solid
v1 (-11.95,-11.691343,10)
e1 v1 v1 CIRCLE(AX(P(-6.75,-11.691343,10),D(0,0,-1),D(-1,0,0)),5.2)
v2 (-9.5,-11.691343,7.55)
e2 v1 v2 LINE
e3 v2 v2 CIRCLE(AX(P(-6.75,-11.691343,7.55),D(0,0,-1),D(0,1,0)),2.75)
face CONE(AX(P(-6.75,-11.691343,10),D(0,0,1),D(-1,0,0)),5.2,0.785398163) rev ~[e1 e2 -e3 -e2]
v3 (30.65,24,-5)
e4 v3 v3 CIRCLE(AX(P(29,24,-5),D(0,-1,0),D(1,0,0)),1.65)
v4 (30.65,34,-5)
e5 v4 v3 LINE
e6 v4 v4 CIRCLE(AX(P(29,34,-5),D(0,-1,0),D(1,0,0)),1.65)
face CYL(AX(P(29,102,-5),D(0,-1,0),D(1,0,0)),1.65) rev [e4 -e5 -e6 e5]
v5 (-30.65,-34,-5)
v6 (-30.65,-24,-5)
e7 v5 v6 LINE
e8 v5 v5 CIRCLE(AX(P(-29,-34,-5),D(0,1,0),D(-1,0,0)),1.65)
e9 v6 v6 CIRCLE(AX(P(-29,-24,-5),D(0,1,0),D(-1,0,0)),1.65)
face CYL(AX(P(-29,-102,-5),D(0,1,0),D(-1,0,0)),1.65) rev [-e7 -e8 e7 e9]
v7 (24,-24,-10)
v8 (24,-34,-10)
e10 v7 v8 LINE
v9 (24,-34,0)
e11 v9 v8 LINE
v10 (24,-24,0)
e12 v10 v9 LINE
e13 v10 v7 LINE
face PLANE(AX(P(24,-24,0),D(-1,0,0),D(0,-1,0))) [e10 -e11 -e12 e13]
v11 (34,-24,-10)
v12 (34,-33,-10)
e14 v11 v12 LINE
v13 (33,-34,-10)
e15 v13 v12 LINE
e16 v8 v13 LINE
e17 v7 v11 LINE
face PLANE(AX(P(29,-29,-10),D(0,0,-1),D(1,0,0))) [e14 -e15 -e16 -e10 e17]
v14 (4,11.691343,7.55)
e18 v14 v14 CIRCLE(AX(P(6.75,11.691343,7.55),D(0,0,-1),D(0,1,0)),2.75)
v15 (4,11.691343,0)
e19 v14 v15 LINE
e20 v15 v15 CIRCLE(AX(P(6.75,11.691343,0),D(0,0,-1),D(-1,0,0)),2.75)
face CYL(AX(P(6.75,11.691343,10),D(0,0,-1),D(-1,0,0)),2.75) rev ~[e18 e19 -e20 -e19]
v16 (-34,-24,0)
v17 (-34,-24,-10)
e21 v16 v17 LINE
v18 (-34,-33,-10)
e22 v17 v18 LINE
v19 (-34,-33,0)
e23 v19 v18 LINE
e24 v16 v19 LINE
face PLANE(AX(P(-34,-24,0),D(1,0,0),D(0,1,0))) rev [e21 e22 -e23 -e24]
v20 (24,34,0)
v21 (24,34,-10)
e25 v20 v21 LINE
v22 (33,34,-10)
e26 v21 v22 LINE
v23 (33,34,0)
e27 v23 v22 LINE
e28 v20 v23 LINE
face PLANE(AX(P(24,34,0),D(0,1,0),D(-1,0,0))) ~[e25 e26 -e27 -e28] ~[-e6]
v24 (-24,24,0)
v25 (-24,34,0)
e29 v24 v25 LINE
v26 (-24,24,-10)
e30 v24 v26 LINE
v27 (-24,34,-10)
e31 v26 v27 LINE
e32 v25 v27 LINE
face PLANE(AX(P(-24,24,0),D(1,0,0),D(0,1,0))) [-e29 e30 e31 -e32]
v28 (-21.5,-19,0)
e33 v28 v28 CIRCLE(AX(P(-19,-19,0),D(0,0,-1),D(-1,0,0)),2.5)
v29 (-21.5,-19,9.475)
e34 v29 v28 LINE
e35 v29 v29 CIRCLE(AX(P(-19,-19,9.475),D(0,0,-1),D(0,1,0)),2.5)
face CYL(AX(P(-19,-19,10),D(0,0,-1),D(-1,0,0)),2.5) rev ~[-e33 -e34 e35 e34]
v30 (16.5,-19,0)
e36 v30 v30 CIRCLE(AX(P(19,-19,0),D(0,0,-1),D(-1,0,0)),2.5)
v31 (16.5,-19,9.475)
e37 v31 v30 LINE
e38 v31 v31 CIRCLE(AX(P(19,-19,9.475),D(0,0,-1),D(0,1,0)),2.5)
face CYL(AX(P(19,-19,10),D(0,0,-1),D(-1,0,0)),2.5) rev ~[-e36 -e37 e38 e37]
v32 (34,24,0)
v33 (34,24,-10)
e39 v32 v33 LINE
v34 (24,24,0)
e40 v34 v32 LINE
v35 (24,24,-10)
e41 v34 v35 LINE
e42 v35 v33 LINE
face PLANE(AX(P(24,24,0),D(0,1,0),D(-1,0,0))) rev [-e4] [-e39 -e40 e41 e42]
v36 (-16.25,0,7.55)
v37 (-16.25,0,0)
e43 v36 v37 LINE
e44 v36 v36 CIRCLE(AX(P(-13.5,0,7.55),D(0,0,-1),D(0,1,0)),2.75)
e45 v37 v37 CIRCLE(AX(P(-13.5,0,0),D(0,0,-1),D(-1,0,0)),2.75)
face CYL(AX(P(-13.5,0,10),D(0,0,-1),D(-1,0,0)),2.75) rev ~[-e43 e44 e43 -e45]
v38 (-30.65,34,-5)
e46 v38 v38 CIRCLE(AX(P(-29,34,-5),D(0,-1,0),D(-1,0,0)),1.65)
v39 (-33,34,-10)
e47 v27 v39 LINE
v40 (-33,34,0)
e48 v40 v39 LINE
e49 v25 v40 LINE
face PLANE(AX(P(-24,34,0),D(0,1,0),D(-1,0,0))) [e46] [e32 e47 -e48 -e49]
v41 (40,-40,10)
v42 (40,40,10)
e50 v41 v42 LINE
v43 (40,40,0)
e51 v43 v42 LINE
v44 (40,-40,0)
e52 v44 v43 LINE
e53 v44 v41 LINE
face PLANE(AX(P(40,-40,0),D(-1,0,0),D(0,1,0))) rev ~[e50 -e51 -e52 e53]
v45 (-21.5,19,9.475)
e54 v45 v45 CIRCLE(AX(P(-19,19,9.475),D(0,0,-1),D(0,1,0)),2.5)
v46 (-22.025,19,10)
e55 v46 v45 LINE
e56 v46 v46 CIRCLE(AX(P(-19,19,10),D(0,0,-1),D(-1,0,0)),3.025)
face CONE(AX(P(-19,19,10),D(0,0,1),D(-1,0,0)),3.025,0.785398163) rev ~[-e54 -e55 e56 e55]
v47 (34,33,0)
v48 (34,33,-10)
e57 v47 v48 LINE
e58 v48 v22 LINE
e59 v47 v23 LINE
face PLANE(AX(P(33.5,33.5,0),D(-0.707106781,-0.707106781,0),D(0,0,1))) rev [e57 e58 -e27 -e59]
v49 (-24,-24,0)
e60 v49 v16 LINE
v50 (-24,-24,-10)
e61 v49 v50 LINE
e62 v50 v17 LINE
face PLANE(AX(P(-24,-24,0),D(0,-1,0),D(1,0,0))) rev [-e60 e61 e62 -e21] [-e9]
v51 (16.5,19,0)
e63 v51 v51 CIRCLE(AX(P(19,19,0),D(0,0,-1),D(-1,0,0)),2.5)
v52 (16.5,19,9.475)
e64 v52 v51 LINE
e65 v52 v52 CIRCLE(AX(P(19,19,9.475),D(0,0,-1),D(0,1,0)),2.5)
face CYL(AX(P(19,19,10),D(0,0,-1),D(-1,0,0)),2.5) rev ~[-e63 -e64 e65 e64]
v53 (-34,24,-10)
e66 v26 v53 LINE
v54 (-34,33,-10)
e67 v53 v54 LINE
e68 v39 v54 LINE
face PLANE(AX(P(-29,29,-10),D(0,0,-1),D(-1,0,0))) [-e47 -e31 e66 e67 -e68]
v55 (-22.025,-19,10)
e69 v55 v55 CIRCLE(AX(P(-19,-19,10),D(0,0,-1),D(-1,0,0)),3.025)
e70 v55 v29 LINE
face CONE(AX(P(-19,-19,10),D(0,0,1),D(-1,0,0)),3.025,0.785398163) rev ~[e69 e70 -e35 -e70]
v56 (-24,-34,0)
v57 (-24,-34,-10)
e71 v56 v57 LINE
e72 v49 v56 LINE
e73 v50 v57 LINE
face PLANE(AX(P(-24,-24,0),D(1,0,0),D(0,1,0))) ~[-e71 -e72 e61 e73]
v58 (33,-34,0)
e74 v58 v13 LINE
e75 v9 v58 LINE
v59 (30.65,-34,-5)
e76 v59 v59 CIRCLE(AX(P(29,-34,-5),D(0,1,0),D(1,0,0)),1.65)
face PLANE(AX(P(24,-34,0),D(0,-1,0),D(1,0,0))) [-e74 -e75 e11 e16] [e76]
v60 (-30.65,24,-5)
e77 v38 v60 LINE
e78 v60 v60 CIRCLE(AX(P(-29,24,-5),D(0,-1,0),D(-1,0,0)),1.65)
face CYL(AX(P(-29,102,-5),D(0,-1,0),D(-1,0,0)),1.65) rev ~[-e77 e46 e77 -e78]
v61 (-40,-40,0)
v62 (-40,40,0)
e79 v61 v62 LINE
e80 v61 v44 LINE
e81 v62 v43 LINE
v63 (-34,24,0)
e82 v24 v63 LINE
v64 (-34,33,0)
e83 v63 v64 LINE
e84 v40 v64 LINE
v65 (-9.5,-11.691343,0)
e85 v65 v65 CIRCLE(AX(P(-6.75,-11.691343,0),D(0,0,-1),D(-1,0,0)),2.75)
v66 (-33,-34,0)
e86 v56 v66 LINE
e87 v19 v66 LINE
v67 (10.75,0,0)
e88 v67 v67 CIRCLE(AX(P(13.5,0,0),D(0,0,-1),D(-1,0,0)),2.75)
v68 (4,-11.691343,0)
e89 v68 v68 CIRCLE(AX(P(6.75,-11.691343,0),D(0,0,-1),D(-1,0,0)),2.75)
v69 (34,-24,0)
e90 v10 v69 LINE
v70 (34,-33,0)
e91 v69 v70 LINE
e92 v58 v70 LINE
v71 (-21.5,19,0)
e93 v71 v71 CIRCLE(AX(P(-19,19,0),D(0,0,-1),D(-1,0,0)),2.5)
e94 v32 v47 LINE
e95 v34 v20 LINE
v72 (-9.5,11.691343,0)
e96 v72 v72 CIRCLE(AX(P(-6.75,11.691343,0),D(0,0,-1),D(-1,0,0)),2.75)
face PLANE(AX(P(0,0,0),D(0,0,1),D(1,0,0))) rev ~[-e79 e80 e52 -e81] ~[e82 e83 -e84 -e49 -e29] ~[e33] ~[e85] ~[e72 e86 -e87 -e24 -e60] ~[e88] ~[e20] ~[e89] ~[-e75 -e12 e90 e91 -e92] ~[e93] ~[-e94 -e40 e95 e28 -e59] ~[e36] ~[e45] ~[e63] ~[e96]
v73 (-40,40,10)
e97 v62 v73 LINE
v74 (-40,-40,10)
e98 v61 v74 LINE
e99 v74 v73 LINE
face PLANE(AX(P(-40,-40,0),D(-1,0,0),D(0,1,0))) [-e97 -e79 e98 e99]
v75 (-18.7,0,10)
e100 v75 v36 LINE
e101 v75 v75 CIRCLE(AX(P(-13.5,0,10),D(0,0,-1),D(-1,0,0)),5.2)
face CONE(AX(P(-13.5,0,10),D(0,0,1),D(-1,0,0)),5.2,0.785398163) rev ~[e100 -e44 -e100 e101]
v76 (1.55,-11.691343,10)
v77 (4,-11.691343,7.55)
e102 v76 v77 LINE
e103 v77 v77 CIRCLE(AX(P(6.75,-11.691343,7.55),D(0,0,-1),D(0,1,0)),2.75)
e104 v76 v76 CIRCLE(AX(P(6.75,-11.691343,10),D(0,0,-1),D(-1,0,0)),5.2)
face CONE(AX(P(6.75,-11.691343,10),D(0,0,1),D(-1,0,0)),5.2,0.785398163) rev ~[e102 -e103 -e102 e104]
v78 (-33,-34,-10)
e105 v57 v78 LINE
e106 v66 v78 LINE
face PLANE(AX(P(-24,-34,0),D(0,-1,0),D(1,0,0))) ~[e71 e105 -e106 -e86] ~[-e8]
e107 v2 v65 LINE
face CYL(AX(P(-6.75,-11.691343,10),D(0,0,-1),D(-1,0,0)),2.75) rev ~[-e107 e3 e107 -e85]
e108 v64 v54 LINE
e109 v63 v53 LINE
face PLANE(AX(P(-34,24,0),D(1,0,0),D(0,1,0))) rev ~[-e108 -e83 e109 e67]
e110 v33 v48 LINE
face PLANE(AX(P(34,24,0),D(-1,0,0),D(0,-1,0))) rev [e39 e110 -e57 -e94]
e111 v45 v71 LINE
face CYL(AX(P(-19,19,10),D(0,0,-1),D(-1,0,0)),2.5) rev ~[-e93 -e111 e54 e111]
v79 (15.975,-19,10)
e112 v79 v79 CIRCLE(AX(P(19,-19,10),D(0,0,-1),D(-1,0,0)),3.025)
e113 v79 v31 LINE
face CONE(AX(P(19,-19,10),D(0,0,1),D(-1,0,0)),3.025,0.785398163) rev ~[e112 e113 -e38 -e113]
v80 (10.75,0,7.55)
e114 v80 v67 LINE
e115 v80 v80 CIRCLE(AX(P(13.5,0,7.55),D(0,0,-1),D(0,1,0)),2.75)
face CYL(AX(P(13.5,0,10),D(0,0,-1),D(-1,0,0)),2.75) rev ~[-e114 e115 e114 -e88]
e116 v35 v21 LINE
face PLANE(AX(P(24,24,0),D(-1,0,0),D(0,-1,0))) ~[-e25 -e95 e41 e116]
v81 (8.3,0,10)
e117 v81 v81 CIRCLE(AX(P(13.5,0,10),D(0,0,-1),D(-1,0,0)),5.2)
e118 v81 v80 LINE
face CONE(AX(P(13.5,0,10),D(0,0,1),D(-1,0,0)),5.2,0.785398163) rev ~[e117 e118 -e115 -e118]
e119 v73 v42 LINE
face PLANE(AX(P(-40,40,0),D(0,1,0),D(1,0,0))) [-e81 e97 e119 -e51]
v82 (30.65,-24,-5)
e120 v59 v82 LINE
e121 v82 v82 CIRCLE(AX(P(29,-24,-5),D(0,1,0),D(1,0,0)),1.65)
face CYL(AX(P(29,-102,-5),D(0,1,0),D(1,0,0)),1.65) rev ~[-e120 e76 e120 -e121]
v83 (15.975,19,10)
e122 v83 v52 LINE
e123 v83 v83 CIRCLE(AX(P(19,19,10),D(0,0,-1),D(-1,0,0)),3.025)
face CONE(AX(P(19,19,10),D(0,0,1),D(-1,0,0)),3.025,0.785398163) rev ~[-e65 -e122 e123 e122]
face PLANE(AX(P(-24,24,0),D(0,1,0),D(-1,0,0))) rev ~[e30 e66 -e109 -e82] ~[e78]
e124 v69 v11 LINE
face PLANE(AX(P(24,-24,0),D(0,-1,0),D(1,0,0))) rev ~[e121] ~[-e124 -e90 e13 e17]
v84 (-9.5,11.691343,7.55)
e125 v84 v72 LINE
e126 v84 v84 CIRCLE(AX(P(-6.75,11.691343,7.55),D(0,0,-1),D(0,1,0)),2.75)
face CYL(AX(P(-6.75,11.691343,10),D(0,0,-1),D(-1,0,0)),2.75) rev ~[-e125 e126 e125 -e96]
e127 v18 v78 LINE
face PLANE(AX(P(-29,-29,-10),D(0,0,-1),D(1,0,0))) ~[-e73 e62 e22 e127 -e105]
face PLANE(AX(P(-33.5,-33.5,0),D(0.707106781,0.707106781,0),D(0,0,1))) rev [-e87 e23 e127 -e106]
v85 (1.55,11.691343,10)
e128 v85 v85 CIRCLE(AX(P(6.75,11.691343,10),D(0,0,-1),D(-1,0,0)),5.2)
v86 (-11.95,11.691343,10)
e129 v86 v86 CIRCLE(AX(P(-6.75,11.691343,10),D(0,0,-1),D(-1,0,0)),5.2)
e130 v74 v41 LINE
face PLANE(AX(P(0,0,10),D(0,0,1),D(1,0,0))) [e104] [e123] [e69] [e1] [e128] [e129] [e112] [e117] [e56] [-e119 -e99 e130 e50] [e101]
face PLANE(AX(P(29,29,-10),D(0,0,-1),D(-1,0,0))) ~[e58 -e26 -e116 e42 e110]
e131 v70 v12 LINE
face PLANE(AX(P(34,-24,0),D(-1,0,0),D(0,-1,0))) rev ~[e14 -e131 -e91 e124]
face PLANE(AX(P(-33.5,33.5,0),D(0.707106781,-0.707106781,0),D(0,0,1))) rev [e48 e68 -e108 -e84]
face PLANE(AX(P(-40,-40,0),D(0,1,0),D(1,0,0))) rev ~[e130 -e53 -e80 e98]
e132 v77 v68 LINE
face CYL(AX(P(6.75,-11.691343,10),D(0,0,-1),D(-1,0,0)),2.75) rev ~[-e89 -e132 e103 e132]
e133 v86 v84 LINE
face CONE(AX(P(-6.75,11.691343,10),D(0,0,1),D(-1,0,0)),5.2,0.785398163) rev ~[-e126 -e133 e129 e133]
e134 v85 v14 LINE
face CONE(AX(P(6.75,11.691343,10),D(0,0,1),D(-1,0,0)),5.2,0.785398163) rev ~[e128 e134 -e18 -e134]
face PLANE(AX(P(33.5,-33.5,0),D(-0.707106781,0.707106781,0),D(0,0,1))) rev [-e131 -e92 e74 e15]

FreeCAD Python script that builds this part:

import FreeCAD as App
import Part
import Sketcher

V = App.Vector


def edges_at(feature, points):
    """Names of the edges that pass closest to the given points."""
    edges = feature.Shape.Edges
    near = lambda p: min(range(len(edges)), key=lambda i: edges[i].distToShape(Part.Vertex(*p))[0])
    return sorted({f"Edge{near(p) + 1}" for p in points})

doc = App.newDocument("Part")
body = doc.addObject("PartDesign::Body", "Body")

sketch1 = doc.addObject("Sketcher::SketchObject", "Sketch")
body.addObject(sketch1)
sketch1.AttachmentSupport = (doc.XY_Plane, [""])
sketch1.MapMode = "FlatFace"
sketch1.addGeometry([
    Part.LineSegment(V(-40, 40, 0), V(-40, -40, 0)),
    Part.LineSegment(V(-40, -40, 0), V(40, -40, 0)),
    Part.LineSegment(V(40, -40, 0), V(40, 40, 0)),
    Part.LineSegment(V(40, 40, 0), V(-40, 40, 0)),
], False)
sketch1.addConstraint([
    Sketcher.Constraint("Coincident", 0, 2, 1, 1),
    Sketcher.Constraint("Coincident", 1, 2, 2, 1),
    Sketcher.Constraint("Coincident", 2, 2, 3, 1),
    Sketcher.Constraint("Coincident", 3, 2, 0, 1),
    Sketcher.Constraint("Vertical", 0),
    Sketcher.Constraint("Horizontal", 1),
    Sketcher.Constraint("Vertical", 2),
    Sketcher.Constraint("Horizontal", 3),
    Sketcher.Constraint("Symmetric", 0, 2, 2, 2, -1, 1),
    Sketcher.Constraint("Equal", 3, 0),
    Sketcher.Constraint("DistanceX", 1, 1, 1, 2, 80.0),
])
pad1 = doc.addObject("PartDesign::Pad", "Pad")
body.addObject(pad1)
pad1.Profile = sketch1
pad1.Length = 10

sketch2 = doc.addObject("Sketcher::SketchObject", "Sketch001")
body.addObject(sketch2)
sketch2.AttachmentSupport = (doc.XY_Plane, [""])
sketch2.MapMode = "FlatFace"
sketch2.addGeometry([
    Part.LineSegment(V(-24, 34, 0), V(-24, 24, 0)),
    Part.LineSegment(V(-24, 24, 0), V(-34, 24, 0)),
    Part.LineSegment(V(-34, 24, 0), V(-34, 34, 0)),
    Part.LineSegment(V(-34, 34, 0), V(-24, 34, 0)),
], False)
sketch2.addConstraint([
    Sketcher.Constraint("Coincident", 0, 2, 1, 1),
    Sketcher.Constraint("Coincident", 1, 2, 2, 1),
    Sketcher.Constraint("Coincident", 2, 2, 3, 1),
    Sketcher.Constraint("Coincident", 3, 2, 0, 1),
    Sketcher.Constraint("Vertical", 0),
    Sketcher.Constraint("Horizontal", 1),
    Sketcher.Constraint("Vertical", 2),
    Sketcher.Constraint("Horizontal", 3),
    Sketcher.Constraint("Equal", 3, 0),
    Sketcher.Constraint("DistanceX", 1, 2, 1, 1, 10.0),
    Sketcher.Constraint("DistanceX", 0, 2, -1, 1, 24.0),
    Sketcher.Constraint("DistanceY", -1, 1, 0, 2, 24.0),
])
pad2 = doc.addObject("PartDesign::Pad", "Pad001")
body.addObject(pad2)
pad2.Profile = sketch2
pad2.Length = 10
pad2.Reversed = True

sketch3 = doc.addObject("Sketcher::SketchObject", "Sketch002")
body.addObject(sketch3)
sketch3.AttachmentSupport = (doc.XZ_Plane, [""])
sketch3.MapMode = "FlatFace"
sketch3.AttachmentOffset = App.Placement(V(0, 0, -34), App.Rotation())
sketch3.addGeometry(Part.Circle(V(-29, -5, 0), V(0, 0, 1), 1.6), False)
sketch3.addConstraint([
    Sketcher.Constraint("Diameter", 0, 3.3),
    Sketcher.Constraint("DistanceX", 0, 3, -1, 1, 29.0),
    Sketcher.Constraint("DistanceY", 0, 3, -1, 1, 5.0),
])
doc.recompute()
hole = doc.addObject("PartDesign::Hole", "Hole")
body.addObject(hole)
hole.Profile = sketch3
hole.ThreadType = "None"
hole.Diameter = 3.3
hole.DepthType = "Dimension"
hole.Depth = 68
hole.DrillPoint = "Flat"
hole.Reversed = True

sketch4 = doc.addObject("Sketcher::SketchObject", "Sketch003")
body.addObject(sketch4)
sketch4.AttachmentSupport = (doc.XY_Plane, [""])
sketch4.MapMode = "FlatFace"
sketch4.AttachmentOffset = App.Placement(V(0, 0, 10), App.Rotation())
sketch4.addGeometry([
    Part.Circle(V(-6.8, 11.7, 0), V(0, 0, 1), 2.8),
    Part.Circle(V(-13.5, 0, 0), V(0, 0, 1), 2.8),
    Part.Circle(V(-6.8, -11.7, 0), V(0, 0, 1), 2.8),
    Part.Circle(V(6.8, -11.7, 0), V(0, 0, 1), 2.8),
    Part.Circle(V(13.5, 0, 0), V(0, 0, 1), 2.8),
    Part.Circle(V(6.8, 11.7, 0), V(0, 0, 1), 2.8),
], False)
sketch4.addConstraint([
    Sketcher.Constraint("Equal", 0, 1),
    Sketcher.Constraint("Equal", 1, 2),
    Sketcher.Constraint("Equal", 2, 3),
    Sketcher.Constraint("Equal", 3, 4),
    Sketcher.Constraint("Equal", 4, 5),
    Sketcher.Constraint("Symmetric", 0, 3, 3, 3, -1, 1),
    Sketcher.Constraint("Symmetric", 1, 3, 4, 3, -1, 1),
    Sketcher.Constraint("Symmetric", 2, 3, 5, 3, -1, 1),
    Sketcher.Constraint("Symmetric", 2, 3, 3, 3, -2),
    Sketcher.Constraint("PointOnObject", 1, 3, -1),
    Sketcher.Constraint("Diameter", 0, 5.5),
    Sketcher.Constraint("DistanceX", 1, 3, 4, 3, 27.0),
    Sketcher.Constraint("DistanceX", 2, 3, 3, 3, 13.5),
    Sketcher.Constraint("DistanceY", -1, 1, 0, 3, 11.691343),
])
doc.recompute()
hole2 = doc.addObject("PartDesign::Hole", "Hole001")
body.addObject(hole2)
hole2.Profile = sketch4
hole2.ThreadType = "None"
hole2.Diameter = 5.5
hole2.DepthType = "Dimension"
hole2.Depth = 10
hole2.DrillPoint = "Flat"
hole2.HoleCutType = "Countersink"
hole2.HoleCutDiameter = 10.4
hole2.HoleCutCountersinkAngle = 90

sketch5 = doc.addObject("Sketcher::SketchObject", "Sketch004")
body.addObject(sketch5)
sketch5.AttachmentSupport = (doc.XY_Plane, [""])
sketch5.MapMode = "FlatFace"
sketch5.AttachmentOffset = App.Placement(V(0, 0, 10), App.Rotation())
sketch5.addGeometry([
    Part.Circle(V(-19, -19, 0), V(0, 0, 1), 2.5),
    Part.Circle(V(19, -19, 0), V(0, 0, 1), 2.5),
    Part.Circle(V(19, 19, 0), V(0, 0, 1), 2.5),
    Part.Circle(V(-19, 19, 0), V(0, 0, 1), 2.5),
], False)
sketch5.addConstraint([
    Sketcher.Constraint("Equal", 0, 1),
    Sketcher.Constraint("Equal", 1, 2),
    Sketcher.Constraint("Equal", 2, 3),
    Sketcher.Constraint("Symmetric", 0, 3, 2, 3, -1, 1),
    Sketcher.Constraint("Symmetric", 1, 3, 3, 3, -1, 1),
    Sketcher.Constraint("Symmetric", 0, 3, 1, 3, -2),
    Sketcher.Constraint("Diameter", 0, 5.0),
    Sketcher.Constraint("DistanceX", 0, 3, -1, 1, 19.0),
    Sketcher.Constraint("DistanceY", 0, 3, -1, 1, 19.0),
])
doc.recompute()
hole3 = doc.addObject("PartDesign::Hole", "Hole002")
body.addObject(hole3)
hole3.Profile = sketch5
hole3.ThreadType = "None"
hole3.Diameter = 5
hole3.DepthType = "Dimension"
hole3.Depth = 10
hole3.DrillPoint = "Flat"
hole3.HoleCutType = "Countersink"
hole3.HoleCutDiameter = 6.05
hole3.HoleCutCountersinkAngle = 90
doc.recompute()

mirrored = doc.addObject("PartDesign::Mirrored", "Mirrored")
body.addObject(mirrored)
mirrored.Originals = [pad2, hole]
mirrored.MirrorPlane = (doc.YZ_Plane, [""])
body.Tip = mirrored
doc.recompute()

mirrored2 = doc.addObject("PartDesign::Mirrored", "Mirrored001")
body.addObject(mirrored2)
mirrored2.Originals = [pad2, hole]
mirrored2.MirrorPlane = (doc.XZ_Plane, [""])
body.Tip = mirrored2

sketch6 = doc.addObject("Sketcher::SketchObject", "Sketch005")
body.addObject(sketch6)
sketch6.AttachmentSupport = (doc.XY_Plane, [""])
sketch6.MapMode = "FlatFace"
sketch6.addGeometry([
    Part.LineSegment(V(24, -34, 0), V(24, -24, 0)),
    Part.LineSegment(V(24, -24, 0), V(34, -24, 0)),
    Part.LineSegment(V(34, -24, 0), V(34, -34, 0)),
    Part.LineSegment(V(34, -34, 0), V(24, -34, 0)),
], False)
sketch6.addConstraint([
    Sketcher.Constraint("Coincident", 0, 2, 1, 1),
    Sketcher.Constraint("Coincident", 1, 2, 2, 1),
    Sketcher.Constraint("Coincident", 2, 2, 3, 1),
    Sketcher.Constraint("Coincident", 3, 2, 0, 1),
    Sketcher.Constraint("Vertical", 0),
    Sketcher.Constraint("Horizontal", 1),
    Sketcher.Constraint("Vertical", 2),
    Sketcher.Constraint("Horizontal", 3),
    Sketcher.Constraint("Equal", 3, 0),
    Sketcher.Constraint("DistanceX", 1, 1, 1, 2, 10.0),
    Sketcher.Constraint("DistanceX", -1, 1, 0, 2, 24.0),
    Sketcher.Constraint("DistanceY", 0, 2, -1, 1, 24.0),
])
pad3 = doc.addObject("PartDesign::Pad", "Pad002")
body.addObject(pad3)
pad3.Profile = sketch6
pad3.Length = 10
pad3.Reversed = True

sketch7 = doc.addObject("Sketcher::SketchObject", "Sketch006")
body.addObject(sketch7)
sketch7.AttachmentSupport = (doc.XZ_Plane, [""])
sketch7.MapMode = "FlatFace"
sketch7.AttachmentOffset = App.Placement(V(0, 0, 34), App.Rotation())
sketch7.addGeometry(Part.Circle(V(29, -5, 0), V(0, 0, 1), 1.6), False)
sketch7.addConstraint([
    Sketcher.Constraint("Diameter", 0, 3.3),
    Sketcher.Constraint("DistanceX", -1, 1, 0, 3, 29.0),
    Sketcher.Constraint("DistanceY", 0, 3, -1, 1, 5.0),
])
doc.recompute()
hole4 = doc.addObject("PartDesign::Hole", "Hole003")
body.addObject(hole4)
hole4.Profile = sketch7
hole4.ThreadType = "None"
hole4.Diameter = 3.3
hole4.DepthType = "Dimension"
hole4.Depth = 68
hole4.DrillPoint = "Flat"
doc.recompute()

chamfer = doc.addObject("PartDesign::Chamfer", "Chamfer")
body.addObject(chamfer)
chamfer.Base = (hole4, edges_at(hole4, [
    (34, 34, -5),
    (34, -34, -5),
    (-34, -34, -5),
    (-34, 34, -5),
]))
chamfer.Size = 1

doc.recompute()
